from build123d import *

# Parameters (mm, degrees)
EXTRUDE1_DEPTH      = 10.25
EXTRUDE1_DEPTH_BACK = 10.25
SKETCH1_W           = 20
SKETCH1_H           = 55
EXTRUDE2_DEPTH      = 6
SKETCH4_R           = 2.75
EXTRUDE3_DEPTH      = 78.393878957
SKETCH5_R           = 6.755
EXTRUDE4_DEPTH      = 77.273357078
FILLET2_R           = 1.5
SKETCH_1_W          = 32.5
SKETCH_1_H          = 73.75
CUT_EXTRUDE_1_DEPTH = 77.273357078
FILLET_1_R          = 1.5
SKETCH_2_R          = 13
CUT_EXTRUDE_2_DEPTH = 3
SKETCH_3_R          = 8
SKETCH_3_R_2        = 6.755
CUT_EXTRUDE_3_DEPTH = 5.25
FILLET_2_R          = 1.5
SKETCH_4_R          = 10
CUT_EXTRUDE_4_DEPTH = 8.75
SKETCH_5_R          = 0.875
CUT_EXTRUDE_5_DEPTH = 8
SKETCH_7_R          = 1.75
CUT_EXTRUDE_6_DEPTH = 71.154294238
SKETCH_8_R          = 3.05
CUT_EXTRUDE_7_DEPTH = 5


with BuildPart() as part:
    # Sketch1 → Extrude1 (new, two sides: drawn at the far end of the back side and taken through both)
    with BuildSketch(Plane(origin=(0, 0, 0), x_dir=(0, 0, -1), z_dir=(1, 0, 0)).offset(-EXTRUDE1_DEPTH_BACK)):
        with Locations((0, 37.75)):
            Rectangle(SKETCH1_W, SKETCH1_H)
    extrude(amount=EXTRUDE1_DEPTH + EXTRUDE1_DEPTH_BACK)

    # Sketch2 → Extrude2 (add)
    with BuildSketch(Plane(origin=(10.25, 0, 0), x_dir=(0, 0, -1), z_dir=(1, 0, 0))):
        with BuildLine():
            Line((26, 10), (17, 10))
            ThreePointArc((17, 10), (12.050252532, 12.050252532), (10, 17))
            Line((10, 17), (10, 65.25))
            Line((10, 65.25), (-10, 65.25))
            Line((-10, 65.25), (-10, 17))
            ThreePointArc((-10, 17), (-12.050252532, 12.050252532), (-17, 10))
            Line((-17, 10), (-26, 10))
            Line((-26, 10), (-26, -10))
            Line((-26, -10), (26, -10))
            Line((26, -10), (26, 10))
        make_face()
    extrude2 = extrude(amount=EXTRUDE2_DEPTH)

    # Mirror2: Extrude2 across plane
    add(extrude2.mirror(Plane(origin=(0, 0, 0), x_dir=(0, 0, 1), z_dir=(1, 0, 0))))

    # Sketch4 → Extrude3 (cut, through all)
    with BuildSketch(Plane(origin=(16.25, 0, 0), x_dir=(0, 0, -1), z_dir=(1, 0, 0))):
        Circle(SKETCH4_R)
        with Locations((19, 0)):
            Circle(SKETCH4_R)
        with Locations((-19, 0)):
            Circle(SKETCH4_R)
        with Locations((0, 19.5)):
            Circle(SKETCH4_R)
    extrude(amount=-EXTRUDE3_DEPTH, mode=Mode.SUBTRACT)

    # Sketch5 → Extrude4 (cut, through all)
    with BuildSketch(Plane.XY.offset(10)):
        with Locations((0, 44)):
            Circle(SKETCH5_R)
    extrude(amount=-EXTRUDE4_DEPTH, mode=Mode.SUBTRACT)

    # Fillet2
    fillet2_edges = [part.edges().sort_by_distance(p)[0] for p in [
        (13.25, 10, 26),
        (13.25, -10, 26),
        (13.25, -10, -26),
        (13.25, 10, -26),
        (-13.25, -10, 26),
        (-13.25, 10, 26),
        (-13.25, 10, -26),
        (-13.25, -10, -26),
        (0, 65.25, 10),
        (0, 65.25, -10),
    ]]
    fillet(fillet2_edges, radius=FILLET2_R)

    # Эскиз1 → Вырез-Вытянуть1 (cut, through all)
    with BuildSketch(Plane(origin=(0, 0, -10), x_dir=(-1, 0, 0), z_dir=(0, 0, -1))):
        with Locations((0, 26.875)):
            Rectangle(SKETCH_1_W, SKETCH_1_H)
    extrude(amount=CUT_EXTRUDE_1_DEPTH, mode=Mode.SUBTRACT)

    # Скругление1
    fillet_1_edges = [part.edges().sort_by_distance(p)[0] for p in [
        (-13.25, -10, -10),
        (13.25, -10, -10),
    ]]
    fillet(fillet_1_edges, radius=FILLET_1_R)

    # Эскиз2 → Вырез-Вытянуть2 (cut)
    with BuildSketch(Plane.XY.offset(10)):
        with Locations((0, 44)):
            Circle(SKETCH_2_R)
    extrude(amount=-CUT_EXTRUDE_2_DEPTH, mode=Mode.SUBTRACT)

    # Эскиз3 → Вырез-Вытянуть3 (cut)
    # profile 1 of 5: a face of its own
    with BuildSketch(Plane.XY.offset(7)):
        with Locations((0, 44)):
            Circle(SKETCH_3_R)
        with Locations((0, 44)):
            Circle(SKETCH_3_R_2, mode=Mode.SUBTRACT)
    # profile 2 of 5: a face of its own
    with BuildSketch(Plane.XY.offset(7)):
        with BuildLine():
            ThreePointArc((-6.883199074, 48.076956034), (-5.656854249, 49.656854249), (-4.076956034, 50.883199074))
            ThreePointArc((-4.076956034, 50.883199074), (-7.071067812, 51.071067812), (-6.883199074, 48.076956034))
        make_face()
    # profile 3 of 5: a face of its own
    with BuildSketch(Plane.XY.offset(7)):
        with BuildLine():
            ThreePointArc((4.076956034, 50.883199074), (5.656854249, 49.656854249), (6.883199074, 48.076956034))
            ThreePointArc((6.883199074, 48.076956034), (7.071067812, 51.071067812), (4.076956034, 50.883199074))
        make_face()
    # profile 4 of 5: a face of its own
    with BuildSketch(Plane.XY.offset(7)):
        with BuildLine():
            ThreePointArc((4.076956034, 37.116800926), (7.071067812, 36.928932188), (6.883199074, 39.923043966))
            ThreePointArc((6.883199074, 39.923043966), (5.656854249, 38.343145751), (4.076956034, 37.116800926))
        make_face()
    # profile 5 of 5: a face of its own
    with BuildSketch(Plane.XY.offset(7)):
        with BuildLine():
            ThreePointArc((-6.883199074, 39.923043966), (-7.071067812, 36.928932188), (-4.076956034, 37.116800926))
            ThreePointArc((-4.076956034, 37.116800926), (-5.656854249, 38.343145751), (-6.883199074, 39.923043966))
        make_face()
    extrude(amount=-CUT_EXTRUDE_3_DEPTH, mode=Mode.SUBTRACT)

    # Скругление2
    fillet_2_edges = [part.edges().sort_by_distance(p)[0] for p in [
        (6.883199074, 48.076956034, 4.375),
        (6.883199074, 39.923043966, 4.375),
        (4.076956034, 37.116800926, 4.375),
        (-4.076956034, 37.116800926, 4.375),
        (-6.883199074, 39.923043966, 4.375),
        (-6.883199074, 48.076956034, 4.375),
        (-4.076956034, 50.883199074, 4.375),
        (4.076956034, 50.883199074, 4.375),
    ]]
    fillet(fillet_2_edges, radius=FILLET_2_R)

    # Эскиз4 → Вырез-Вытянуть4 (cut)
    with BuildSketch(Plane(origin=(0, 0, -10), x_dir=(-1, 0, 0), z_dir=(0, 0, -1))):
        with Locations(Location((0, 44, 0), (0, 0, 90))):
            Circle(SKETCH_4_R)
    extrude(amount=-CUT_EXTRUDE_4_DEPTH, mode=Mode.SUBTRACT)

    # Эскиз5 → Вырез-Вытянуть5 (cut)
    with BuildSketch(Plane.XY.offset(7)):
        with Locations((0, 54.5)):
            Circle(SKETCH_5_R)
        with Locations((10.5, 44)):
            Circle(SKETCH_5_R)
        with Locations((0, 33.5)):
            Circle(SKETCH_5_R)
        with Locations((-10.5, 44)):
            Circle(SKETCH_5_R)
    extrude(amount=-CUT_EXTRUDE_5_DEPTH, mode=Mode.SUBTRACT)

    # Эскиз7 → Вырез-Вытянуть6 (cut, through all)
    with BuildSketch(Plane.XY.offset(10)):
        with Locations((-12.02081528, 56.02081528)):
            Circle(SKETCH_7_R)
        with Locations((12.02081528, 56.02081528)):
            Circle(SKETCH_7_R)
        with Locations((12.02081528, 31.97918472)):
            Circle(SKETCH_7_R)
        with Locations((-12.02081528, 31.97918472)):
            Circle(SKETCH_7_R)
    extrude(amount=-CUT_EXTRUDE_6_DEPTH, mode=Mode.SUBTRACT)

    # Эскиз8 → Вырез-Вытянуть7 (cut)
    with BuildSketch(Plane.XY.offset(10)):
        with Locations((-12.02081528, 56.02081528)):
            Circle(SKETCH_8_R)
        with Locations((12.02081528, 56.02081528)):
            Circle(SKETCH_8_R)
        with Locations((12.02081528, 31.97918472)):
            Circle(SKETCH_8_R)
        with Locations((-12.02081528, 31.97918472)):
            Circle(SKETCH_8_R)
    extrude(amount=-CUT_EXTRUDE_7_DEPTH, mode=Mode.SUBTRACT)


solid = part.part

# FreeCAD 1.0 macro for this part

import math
import FreeCAD as App
import Part
import Sketcher

V = App.Vector


def edges_at(feature, points):
    """Names of the edges that pass closest to the given points."""
    edges = feature.Shape.Edges
    near = lambda p: min(range(len(edges)), key=lambda i: edges[i].distToShape(Part.Vertex(*p))[0])
    return sorted({f"Edge{near(p) + 1}" for p in points})

doc = App.newDocument("Part")
params = doc.addObject("Spreadsheet::Sheet", "Params")
for row, (alias, value) in enumerate([
    ("sketch1_width", "55 mm"),
    ("sketch1_height", "20 mm"),
    ("pad1_length", "10.25 mm"),
    ("pad1_length2", "10.25 mm"),
    ("sketch2_radius", "7 mm"),
    ("sketch2_width", "20 mm"),
    ("sketch2_height", "9 mm"),
    ("sketch2_width2", "48.25 mm"),
    ("pad2_length", "6 mm"),
    ("sketch3_diameter", "5.5 mm"),
    ("sketch4_diameter", "13.51 mm"),
    ("fillet_radius", "1.5 mm"),
    ("sketch5_width", "32.5 mm"),
    ("sketch5_height", "73.75 mm"),
    ("fillet2_radius", "1.5 mm"),
    ("sketch6_diameter", "26 mm"),
    ("pocket4_length", "3 mm"),
    ("sketch7_radius", "2 mm"),
    ("sketch7_radius2", "8 mm"),
    ("sketch7_diameter", "13.51 mm"),
    ("pocket5_length", "5.25 mm"),
    ("fillet3_radius", "1.5 mm"),
    ("sketch8_diameter", "20 mm"),
    ("pocket6_length", "8.75 mm"),
    ("sketch9_diameter", "1.75 mm"),
    ("pocket7_length", "8 mm"),
    ("sketch10_diameter", "3.5 mm"),
    ("sketch11_diameter", "6.1 mm"),
    ("pocket9_length", "5 mm"),
], start=1):
    params.set(f"A{row}", alias)
    params.set(f"B{row}", "=" + value)
    params.setAlias(f"B{row}", alias)

body = doc.addObject("PartDesign::Body", "Body")

sketch1 = body.newObject("Sketcher::SketchObject", "Sketch")
sketch1.AttachmentSupport = (doc.getObject("YZ_Plane"), [""])
sketch1.MapMode = "FlatFace"
sketch1.addGeometry(Part.LineSegment(V(65, 10, 0), V(10, 10, 0)), False)
sketch1.addGeometry(Part.LineSegment(V(10, 10, 0), V(10, -10, 0)), False)
sketch1.addGeometry(Part.LineSegment(V(10, -10, 0), V(65, -10, 0)), False)
sketch1.addGeometry(Part.LineSegment(V(65, -10, 0), V(65, 10, 0)), False)
sketch1.addConstraint(Sketcher.Constraint("Coincident", 0, 2, 1, 1))
sketch1.addConstraint(Sketcher.Constraint("Coincident", 1, 2, 2, 1))
sketch1.addConstraint(Sketcher.Constraint("Coincident", 2, 2, 3, 1))
sketch1.addConstraint(Sketcher.Constraint("Coincident", 3, 2, 0, 1))
sketch1.addConstraint(Sketcher.Constraint("Horizontal", 0))
sketch1.addConstraint(Sketcher.Constraint("Vertical", 1))
sketch1.addConstraint(Sketcher.Constraint("Horizontal", 2))
sketch1.addConstraint(Sketcher.Constraint("Vertical", 3))
sketch1.addConstraint(Sketcher.Constraint("DistanceX", 0, 2, 0, 1, 55.0))
sketch1.addConstraint(Sketcher.Constraint("DistanceY", 1, 2, 1, 1, 20.0))
sketch1.addConstraint(Sketcher.Constraint("DistanceY", -1, 1, 0, 2, 10.0))
sketch1.addConstraint(Sketcher.Constraint("DistanceX", -1, 1, 0, 2, 10.25))
sketch1.setExpression("Constraints[8]", "Params.sketch1_width")
sketch1.setExpression("Constraints[9]", "Params.sketch1_height")
pad1 = body.newObject("PartDesign::Pad", "Pad")
pad1.Profile = sketch1
pad1.Type = "TwoLengths"
pad1.setExpression("Length", "Params.pad1_length")
pad1.setExpression("Length2", "Params.pad1_length2")

sketch2 = body.newObject("Sketcher::SketchObject", "Sketch001")
sketch2.AttachmentSupport = (doc.getObject("YZ_Plane"), [""])
sketch2.MapMode = "FlatFace"
sketch2.AttachmentOffset = App.Placement(V(0, 0, 10.25), App.Rotation())
sketch2.addGeometry(Part.LineSegment(V(10, -26, 0), V(10, -17, 0)), False)
sketch2.addGeometry(Part.ArcOfCircle(Part.Circle(V(17, -17, 0), V(0, 0, 1), 7), math.radians(90), math.radians(180)), False)
sketch2.addGeometry(Part.LineSegment(V(17, -10, 0), V(65, -10, 0)), False)
sketch2.addGeometry(Part.LineSegment(V(65, -10, 0), V(65, 10, 0)), False)
sketch2.addGeometry(Part.LineSegment(V(65, 10, 0), V(17, 10, 0)), False)
sketch2.addGeometry(Part.ArcOfCircle(Part.Circle(V(17, 17, 0), V(0, 0, 1), 7), math.radians(-180), math.radians(-90)), False)
sketch2.addGeometry(Part.LineSegment(V(10, 17, 0), V(10, 26, 0)), False)
sketch2.addGeometry(Part.LineSegment(V(10, 26, 0), V(-10, 26, 0)), False)
sketch2.addGeometry(Part.LineSegment(V(-10, 26, 0), V(-10, -26, 0)), False)
sketch2.addGeometry(Part.LineSegment(V(-10, -26, 0), V(10, -26, 0)), False)
sketch2.addConstraint(Sketcher.Constraint("Tangent", 0, 2, 1, 2))
sketch2.addConstraint(Sketcher.Constraint("Tangent", 1, 1, 2, 1))
sketch2.addConstraint(Sketcher.Constraint("Coincident", 2, 2, 3, 1))
sketch2.addConstraint(Sketcher.Constraint("Coincident", 3, 2, 4, 1))
sketch2.addConstraint(Sketcher.Constraint("Tangent", 4, 2, 5, 2))
sketch2.addConstraint(Sketcher.Constraint("Tangent", 5, 1, 6, 1))
sketch2.addConstraint(Sketcher.Constraint("Coincident", 6, 2, 7, 1))
sketch2.addConstraint(Sketcher.Constraint("Coincident", 7, 2, 8, 1))
sketch2.addConstraint(Sketcher.Constraint("Coincident", 8, 2, 9, 1))
sketch2.addConstraint(Sketcher.Constraint("Coincident", 9, 2, 0, 1))
sketch2.addConstraint(Sketcher.Constraint("Vertical", 0))
sketch2.addConstraint(Sketcher.Constraint("Horizontal", 2))
sketch2.addConstraint(Sketcher.Constraint("Vertical", 3))
sketch2.addConstraint(Sketcher.Constraint("Horizontal", 4))
sketch2.addConstraint(Sketcher.Constraint("Vertical", 6))
sketch2.addConstraint(Sketcher.Constraint("Horizontal", 7))
sketch2.addConstraint(Sketcher.Constraint("Vertical", 8))
sketch2.addConstraint(Sketcher.Constraint("Horizontal", 9))
sketch2.addConstraint(Sketcher.Constraint("Equal", 1, 5))
sketch2.addConstraint(Sketcher.Constraint("Symmetric", 6, 2, 8, 2, -1, 1))
sketch2.addConstraint(Sketcher.Constraint("Symmetric", 1, 3, 5, 3, -1))
sketch2.addConstraint(Sketcher.Constraint("Equal", 9, 3))
sketch2.addConstraint(Sketcher.Constraint("Radius", 1, 7.0))
sketch2.addConstraint(Sketcher.Constraint("DistanceX", 7, 2, 7, 1, 20.0))
sketch2.addConstraint(Sketcher.Constraint("DistanceY", 0, 1, 0, 2, 9.0))
sketch2.addConstraint(Sketcher.Constraint("DistanceX", 2, 1, 2, 2, 48.25))
sketch2.setExpression("Constraints[22]", "Params.sketch2_radius")
sketch2.setExpression("Constraints[23]", "Params.sketch2_width")
sketch2.setExpression("Constraints[24]", "Params.sketch2_height")
sketch2.setExpression("Constraints[25]", "Params.sketch2_width2")
pad2 = body.newObject("PartDesign::Pad", "Pad001")
pad2.Profile = sketch2
pad2.setExpression("Length", "Params.pad2_length")
doc.recompute()

mirrored = body.newObject("PartDesign::Mirrored", "Mirrored")
mirrored.Originals = [pad2]
mirrored.MirrorPlane = (doc.getObject("YZ_Plane"), [""])
body.Tip = mirrored

sketch3 = body.newObject("Sketcher::SketchObject", "Sketch002")
sketch3.AttachmentSupport = (doc.getObject("YZ_Plane"), [""])
sketch3.MapMode = "FlatFace"
sketch3.AttachmentOffset = App.Placement(V(0, 0, 16.25), App.Rotation())
sketch3.addGeometry(Part.Circle(V(0, 0, 0), V(0, 0, 1), 2.8), False)
sketch3.addGeometry(Part.Circle(V(0, -19, 0), V(0, 0, 1), 2.8), False)
sketch3.addGeometry(Part.Circle(V(0, 19, 0), V(0, 0, 1), 2.8), False)
sketch3.addGeometry(Part.Circle(V(19.5, 0, 0), V(0, 0, 1), 2.8), False)
sketch3.addConstraint(Sketcher.Constraint("Coincident", 0, 3, -1, 1))
sketch3.addConstraint(Sketcher.Constraint("Equal", 0, 1))
sketch3.addConstraint(Sketcher.Constraint("Equal", 1, 2))
sketch3.addConstraint(Sketcher.Constraint("Equal", 2, 3))
sketch3.addConstraint(Sketcher.Constraint("Symmetric", 1, 3, 2, 3, -1, 1))
sketch3.addConstraint(Sketcher.Constraint("PointOnObject", 1, 3, -2))
sketch3.addConstraint(Sketcher.Constraint("PointOnObject", 3, 3, -1))
sketch3.addConstraint(Sketcher.Constraint("Diameter", 0, 5.5))
sketch3.addConstraint(Sketcher.Constraint("DistanceY", 1, 3, -1, 1, 19.0))
sketch3.addConstraint(Sketcher.Constraint("DistanceX", -1, 1, 3, 3, 19.5))
sketch3.setExpression("Constraints[7]", "Params.sketch3_diameter")
pocket1 = body.newObject("PartDesign::Pocket", "Pocket")
pocket1.Profile = sketch3
pocket1.Type = "ThroughAll"

sketch4 = body.newObject("Sketcher::SketchObject", "Sketch003")
sketch4.AttachmentSupport = (doc.getObject("XY_Plane"), [""])
sketch4.MapMode = "FlatFace"
sketch4.AttachmentOffset = App.Placement(V(0, 0, 10), App.Rotation())
sketch4.addGeometry(Part.Circle(V(0, 44, 0), V(0, 0, 1), 7), False)
sketch4.addConstraint(Sketcher.Constraint("PointOnObject", 0, 3, -2))
sketch4.addConstraint(Sketcher.Constraint("Diameter", 0, 13.51))
sketch4.addConstraint(Sketcher.Constraint("DistanceY", -1, 1, 0, 3, 44.0))
sketch4.setExpression("Constraints[1]", "Params.sketch4_diameter")
pocket2 = body.newObject("PartDesign::Pocket", "Pocket001")
pocket2.Profile = sketch4
pocket2.Type = "ThroughAll"
doc.recompute()

fillet = body.newObject("PartDesign::Fillet", "Fillet")
fillet.Base = (pocket2, edges_at(pocket2, [
    (13.25, 10, 26),
    (13.25, -10, 26),
    (13.25, -10, -26),
    (13.25, 10, -26),
    (-13.25, -10, 26),
    (-13.25, 10, 26),
    (-13.25, 10, -26),
    (-13.25, -10, -26),
    (0, 65.25, 10),
    (0, 65.25, -10),
]))
fillet.setExpression("Radius", "Params.fillet_radius")

sketch5 = body.newObject("Sketcher::SketchObject", "Sketch004")
sketch5.AttachmentSupport = (doc.getObject("XY_Plane"), [""])
sketch5.MapMode = "FlatFace"
sketch5.AttachmentOffset = App.Placement(V(0, 0, -10), App.Rotation())
sketch5.addGeometry(Part.LineSegment(V(16, 64, 0), V(16, -10, 0)), False)
sketch5.addGeometry(Part.LineSegment(V(16, -10, 0), V(-16, -10, 0)), False)
sketch5.addGeometry(Part.LineSegment(V(-16, -10, 0), V(-16, 64, 0)), False)
sketch5.addGeometry(Part.LineSegment(V(-16, 64, 0), V(16, 64, 0)), False)
sketch5.addConstraint(Sketcher.Constraint("Coincident", 0, 2, 1, 1))
sketch5.addConstraint(Sketcher.Constraint("Coincident", 1, 2, 2, 1))
sketch5.addConstraint(Sketcher.Constraint("Coincident", 2, 2, 3, 1))
sketch5.addConstraint(Sketcher.Constraint("Coincident", 3, 2, 0, 1))
sketch5.addConstraint(Sketcher.Constraint("Vertical", 0))
sketch5.addConstraint(Sketcher.Constraint("Horizontal", 1))
sketch5.addConstraint(Sketcher.Constraint("Vertical", 2))
sketch5.addConstraint(Sketcher.Constraint("Horizontal", 3))
sketch5.addConstraint(Sketcher.Constraint("DistanceX", 1, 2, 1, 1, 32.5))
sketch5.addConstraint(Sketcher.Constraint("DistanceY", 0, 2, -1, 1, 10.0))
sketch5.addConstraint(Sketcher.Constraint("DistanceY", 0, 2, 0, 1, 73.75))
sketch5.addConstraint(Sketcher.Constraint("DistanceX", -1, 1, 0, 2, 16.25))
sketch5.setExpression("Constraints[8]", "Params.sketch5_width")
sketch5.setExpression("Constraints[10]", "Params.sketch5_height")
pocket3 = body.newObject("PartDesign::Pocket", "Pocket002")
pocket3.Profile = sketch5
pocket3.Type = "ThroughAll"
doc.recompute()

fillet2 = body.newObject("PartDesign::Fillet", "Fillet001")
fillet2.Base = (pocket3, edges_at(pocket3, [(-13.25, -10, -10), (13.25, -10, -10)]))
fillet2.setExpression("Radius", "Params.fillet2_radius")

sketch6 = body.newObject("Sketcher::SketchObject", "Sketch005")
sketch6.AttachmentSupport = (doc.getObject("XY_Plane"), [""])
sketch6.MapMode = "FlatFace"
sketch6.AttachmentOffset = App.Placement(V(0, 0, 10), App.Rotation())
sketch6.addGeometry(Part.Circle(V(0, 44, 0), V(0, 0, 1), 13), False)
sketch6.addConstraint(Sketcher.Constraint("PointOnObject", 0, 3, -2))
sketch6.addConstraint(Sketcher.Constraint("Diameter", 0, 26.0))
sketch6.addConstraint(Sketcher.Constraint("DistanceY", -1, 1, 0, 3, 44.0))
sketch6.setExpression("Constraints[1]", "Params.sketch6_diameter")
pocket4 = body.newObject("PartDesign::Pocket", "Pocket003")
pocket4.Profile = sketch6
pocket4.setExpression("Length", "Params.pocket4_length")

sketch7 = body.newObject("Sketcher::SketchObject", "Sketch006")
sketch7.AttachmentSupport = (doc.getObject("XY_Plane"), [""])
sketch7.MapMode = "FlatFace"
sketch7.AttachmentOffset = App.Placement(V(0, 0, 7), App.Rotation())
sketch7.addGeometry(Part.ArcOfCircle(Part.Circle(V(5.7, 49.7, 0), V(0, 0, 1), 2), math.radians(-52), math.radians(142)), False)
sketch7.addGeometry(Part.ArcOfCircle(Part.Circle(V(0, 44, 0), V(0, 0, 1), 8), math.radians(59), math.radians(121)), False)
sketch7.addGeometry(Part.ArcOfCircle(Part.Circle(V(-5.7, 49.7, 0), V(0, 0, 1), 2), math.radians(38), math.radians(232)), False)
sketch7.addGeometry(Part.ArcOfCircle(Part.Circle(V(0, 44, 0), V(0, 0, 1), 8), math.radians(149), math.radians(211)), False)
sketch7.addGeometry(Part.ArcOfCircle(Part.Circle(V(-5.7, 38.3, 0), V(0, 0, 1), 2), math.radians(128), math.radians(322)), False)
sketch7.addGeometry(Part.ArcOfCircle(Part.Circle(V(0, 44, 0), V(0, 0, 1), 8), math.radians(-121), math.radians(-59)), False)
sketch7.addGeometry(Part.ArcOfCircle(Part.Circle(V(5.7, 38.3, 0), V(0, 0, 1), 2), math.radians(-142), math.radians(52)), False)
sketch7.addGeometry(Part.ArcOfCircle(Part.Circle(V(0, 44, 0), V(0, 0, 1), 8), math.radians(-31), math.radians(31)), False)
sketch7.addGeometry(Part.Circle(V(0, 44, 0), V(0, 0, 1), 6.8), False)
sketch7.addConstraint(Sketcher.Constraint("Coincident", 0, 2, 1, 1))
sketch7.addConstraint(Sketcher.Constraint("Coincident", 1, 2, 2, 1))
sketch7.addConstraint(Sketcher.Constraint("Coincident", 2, 2, 3, 1))
sketch7.addConstraint(Sketcher.Constraint("Coincident", 3, 2, 4, 1))
sketch7.addConstraint(Sketcher.Constraint("Coincident", 4, 2, 5, 1))
sketch7.addConstraint(Sketcher.Constraint("Coincident", 5, 2, 6, 1))
sketch7.addConstraint(Sketcher.Constraint("Coincident", 6, 2, 7, 1))
sketch7.addConstraint(Sketcher.Constraint("Coincident", 7, 2, 0, 1))
sketch7.addConstraint(Sketcher.Constraint("Coincident", 3, 3, 1, 3))
sketch7.addConstraint(Sketcher.Constraint("Coincident", 5, 3, 1, 3))
sketch7.addConstraint(Sketcher.Constraint("Coincident", 7, 3, 1, 3))
sketch7.addConstraint(Sketcher.Constraint("Coincident", 8, 3, 1, 3))
sketch7.addConstraint(Sketcher.Constraint("Equal", 0, 2))
sketch7.addConstraint(Sketcher.Constraint("Equal", 1, 3))
sketch7.addConstraint(Sketcher.Constraint("Equal", 2, 4))
sketch7.addConstraint(Sketcher.Constraint("Equal", 3, 5))
sketch7.addConstraint(Sketcher.Constraint("Equal", 4, 6))
sketch7.addConstraint(Sketcher.Constraint("Equal", 5, 7))
sketch7.addConstraint(Sketcher.Constraint("Symmetric", 0, 3, 2, 3, -2))
sketch7.addConstraint(Sketcher.Constraint("Symmetric", 4, 3, 6, 3, -2))
sketch7.addConstraint(Sketcher.Constraint("PointOnObject", 1, 3, -2))
sketch7.addConstraint(Sketcher.Constraint("Vertical", 2, 3, 4, 3))
sketch7.addConstraint(Sketcher.Constraint("Vertical", 2, 2, 3, 2))
sketch7.addConstraint(Sketcher.Constraint("Radius", 0, 2.0))
sketch7.addConstraint(Sketcher.Constraint("Radius", 1, 8.0))
sketch7.addConstraint(Sketcher.Constraint("Diameter", 8, 13.51))
sketch7.addConstraint(Sketcher.Constraint("DistanceY", -1, 1, 1, 3, 44.0))
sketch7.addConstraint(Sketcher.Constraint("DistanceY", -1, 1, 0, 2, 50.883199))
sketch7.addConstraint(Sketcher.Constraint("DistanceX", 2, 2, -1, 1, 6.883199))
sketch7.setExpression("Constraints[23]", "Params.sketch7_radius")
sketch7.setExpression("Constraints[24]", "Params.sketch7_radius2")
sketch7.setExpression("Constraints[25]", "Params.sketch7_diameter")
pocket5 = body.newObject("PartDesign::Pocket", "Pocket004")
pocket5.Profile = sketch7
pocket5.setExpression("Length", "Params.pocket5_length")
doc.recompute()

fillet3 = body.newObject("PartDesign::Fillet", "Fillet002")
fillet3.Base = (pocket5, edges_at(pocket5, [
    (6.883, 48.077, 4.375),
    (6.883, 39.923, 4.375),
    (4.077, 37.117, 4.375),
    (-4.077, 37.117, 4.375),
    (-6.883, 39.923, 4.375),
    (-6.883, 48.077, 4.375),
    (-4.077, 50.883, 4.375),
    (4.077, 50.883, 4.375),
]))
fillet3.setExpression("Radius", "Params.fillet3_radius")

sketch8 = body.newObject("Sketcher::SketchObject", "Sketch007")
sketch8.AttachmentSupport = (doc.getObject("XY_Plane"), [""])
sketch8.MapMode = "FlatFace"
sketch8.AttachmentOffset = App.Placement(V(0, 0, -10), App.Rotation())
sketch8.addGeometry(Part.Circle(V(0, 44, 0), V(0, 0, 1), 10), False)
sketch8.addConstraint(Sketcher.Constraint("PointOnObject", 0, 3, -2))
sketch8.addConstraint(Sketcher.Constraint("Diameter", 0, 20.0))
sketch8.addConstraint(Sketcher.Constraint("DistanceY", -1, 1, 0, 3, 44.0))
sketch8.setExpression("Constraints[1]", "Params.sketch8_diameter")
pocket6 = body.newObject("PartDesign::Pocket", "Pocket005")
pocket6.Profile = sketch8
pocket6.setExpression("Length", "Params.pocket6_length")
pocket6.Reversed = True

sketch9 = body.newObject("Sketcher::SketchObject", "Sketch008")
sketch9.AttachmentSupport = (doc.getObject("XY_Plane"), [""])
sketch9.MapMode = "FlatFace"
sketch9.AttachmentOffset = App.Placement(V(0, 0, 7), App.Rotation())
sketch9.addGeometry(Part.Circle(V(0, 54.5, 0), V(0, 0, 1), 0.9), False)
sketch9.addGeometry(Part.Circle(V(10.5, 44, 0), V(0, 0, 1), 0.9), False)
sketch9.addGeometry(Part.Circle(V(0, 33.5, 0), V(0, 0, 1), 0.9), False)
sketch9.addGeometry(Part.Circle(V(-10.5, 44, 0), V(0, 0, 1), 0.9), False)
sketch9.addConstraint(Sketcher.Constraint("Equal", 0, 1))
sketch9.addConstraint(Sketcher.Constraint("Equal", 1, 2))
sketch9.addConstraint(Sketcher.Constraint("Equal", 2, 3))
sketch9.addConstraint(Sketcher.Constraint("Symmetric", 1, 3, 3, 3, -2))
sketch9.addConstraint(Sketcher.Constraint("PointOnObject", 0, 3, -2))
sketch9.addConstraint(Sketcher.Constraint("PointOnObject", 2, 3, -2))
sketch9.addConstraint(Sketcher.Constraint("Diameter", 0, 1.75))
sketch9.addConstraint(Sketcher.Constraint("DistanceY", -1, 1, 1, 3, 44.0))
sketch9.addConstraint(Sketcher.Constraint("DistanceY", 2, 3, 0, 3, 21.0))
sketch9.addConstraint(Sketcher.Constraint("DistanceX", 3, 3, 1, 3, 21.0))
sketch9.addConstraint(Sketcher.Constraint("DistanceY", -1, 1, 0, 3, 54.5))
sketch9.setExpression("Constraints[6]", "Params.sketch9_diameter")
pocket7 = body.newObject("PartDesign::Pocket", "Pocket006")
pocket7.Profile = sketch9
pocket7.setExpression("Length", "Params.pocket7_length")

sketch10 = body.newObject("Sketcher::SketchObject", "Sketch009")
sketch10.AttachmentSupport = (doc.getObject("XY_Plane"), [""])
sketch10.MapMode = "FlatFace"
sketch10.AttachmentOffset = App.Placement(V(0, 0, 10), App.Rotation())
sketch10.addGeometry(Part.Circle(V(-12, 56, 0), V(0, 0, 1), 1.8), False)
sketch10.addGeometry(Part.Circle(V(12, 56, 0), V(0, 0, 1), 1.8), False)
sketch10.addGeometry(Part.Circle(V(12, 32, 0), V(0, 0, 1), 1.8), False)
sketch10.addGeometry(Part.Circle(V(-12, 32, 0), V(0, 0, 1), 1.8), False)
sketch10.addConstraint(Sketcher.Constraint("Equal", 0, 1))
sketch10.addConstraint(Sketcher.Constraint("Equal", 1, 2))
sketch10.addConstraint(Sketcher.Constraint("Equal", 2, 3))
sketch10.addConstraint(Sketcher.Constraint("Symmetric", 0, 3, 1, 3, -2))
sketch10.addConstraint(Sketcher.Constraint("Symmetric", 2, 3, 3, 3, -2))
sketch10.addConstraint(Sketcher.Constraint("Vertical", 1, 3, 2, 3))
sketch10.addConstraint(Sketcher.Constraint("Diameter", 0, 3.5))
sketch10.addConstraint(Sketcher.Constraint("DistanceX", 0, 3, 1, 3, 24.041631))
sketch10.addConstraint(Sketcher.Constraint("DistanceY", 2, 3, 1, 3, 24.041631))
sketch10.addConstraint(Sketcher.Constraint("DistanceY", -1, 1, 0, 3, 56.020815))
sketch10.setExpression("Constraints[6]", "Params.sketch10_diameter")
pocket8 = body.newObject("PartDesign::Pocket", "Pocket007")
pocket8.Profile = sketch10
pocket8.Type = "ThroughAll"

sketch11 = body.newObject("Sketcher::SketchObject", "Sketch010")
sketch11.AttachmentSupport = (doc.getObject("XY_Plane"), [""])
sketch11.MapMode = "FlatFace"
sketch11.AttachmentOffset = App.Placement(V(0, 0, 10), App.Rotation())
sketch11.addGeometry(Part.Circle(V(-12, 56, 0), V(0, 0, 1), 3), False)
sketch11.addGeometry(Part.Circle(V(12, 56, 0), V(0, 0, 1), 3), False)
sketch11.addGeometry(Part.Circle(V(12, 32, 0), V(0, 0, 1), 3), False)
sketch11.addGeometry(Part.Circle(V(-12, 32, 0), V(0, 0, 1), 3), False)
sketch11.addConstraint(Sketcher.Constraint("Equal", 0, 1))
sketch11.addConstraint(Sketcher.Constraint("Equal", 1, 2))
sketch11.addConstraint(Sketcher.Constraint("Equal", 2, 3))
sketch11.addConstraint(Sketcher.Constraint("Symmetric", 0, 3, 1, 3, -2))
sketch11.addConstraint(Sketcher.Constraint("Symmetric", 2, 3, 3, 3, -2))
sketch11.addConstraint(Sketcher.Constraint("Vertical", 1, 3, 2, 3))
sketch11.addConstraint(Sketcher.Constraint("Diameter", 0, 6.1))
sketch11.addConstraint(Sketcher.Constraint("DistanceX", 0, 3, 1, 3, 24.041631))
sketch11.addConstraint(Sketcher.Constraint("DistanceY", 2, 3, 1, 3, 24.041631))
sketch11.addConstraint(Sketcher.Constraint("DistanceY", -1, 1, 0, 3, 56.020815))
sketch11.setExpression("Constraints[6]", "Params.sketch11_diameter")
pocket9 = body.newObject("PartDesign::Pocket", "Pocket008")
pocket9.Profile = sketch11
pocket9.setExpression("Length", "Params.pocket9_length")

doc.recompute()
